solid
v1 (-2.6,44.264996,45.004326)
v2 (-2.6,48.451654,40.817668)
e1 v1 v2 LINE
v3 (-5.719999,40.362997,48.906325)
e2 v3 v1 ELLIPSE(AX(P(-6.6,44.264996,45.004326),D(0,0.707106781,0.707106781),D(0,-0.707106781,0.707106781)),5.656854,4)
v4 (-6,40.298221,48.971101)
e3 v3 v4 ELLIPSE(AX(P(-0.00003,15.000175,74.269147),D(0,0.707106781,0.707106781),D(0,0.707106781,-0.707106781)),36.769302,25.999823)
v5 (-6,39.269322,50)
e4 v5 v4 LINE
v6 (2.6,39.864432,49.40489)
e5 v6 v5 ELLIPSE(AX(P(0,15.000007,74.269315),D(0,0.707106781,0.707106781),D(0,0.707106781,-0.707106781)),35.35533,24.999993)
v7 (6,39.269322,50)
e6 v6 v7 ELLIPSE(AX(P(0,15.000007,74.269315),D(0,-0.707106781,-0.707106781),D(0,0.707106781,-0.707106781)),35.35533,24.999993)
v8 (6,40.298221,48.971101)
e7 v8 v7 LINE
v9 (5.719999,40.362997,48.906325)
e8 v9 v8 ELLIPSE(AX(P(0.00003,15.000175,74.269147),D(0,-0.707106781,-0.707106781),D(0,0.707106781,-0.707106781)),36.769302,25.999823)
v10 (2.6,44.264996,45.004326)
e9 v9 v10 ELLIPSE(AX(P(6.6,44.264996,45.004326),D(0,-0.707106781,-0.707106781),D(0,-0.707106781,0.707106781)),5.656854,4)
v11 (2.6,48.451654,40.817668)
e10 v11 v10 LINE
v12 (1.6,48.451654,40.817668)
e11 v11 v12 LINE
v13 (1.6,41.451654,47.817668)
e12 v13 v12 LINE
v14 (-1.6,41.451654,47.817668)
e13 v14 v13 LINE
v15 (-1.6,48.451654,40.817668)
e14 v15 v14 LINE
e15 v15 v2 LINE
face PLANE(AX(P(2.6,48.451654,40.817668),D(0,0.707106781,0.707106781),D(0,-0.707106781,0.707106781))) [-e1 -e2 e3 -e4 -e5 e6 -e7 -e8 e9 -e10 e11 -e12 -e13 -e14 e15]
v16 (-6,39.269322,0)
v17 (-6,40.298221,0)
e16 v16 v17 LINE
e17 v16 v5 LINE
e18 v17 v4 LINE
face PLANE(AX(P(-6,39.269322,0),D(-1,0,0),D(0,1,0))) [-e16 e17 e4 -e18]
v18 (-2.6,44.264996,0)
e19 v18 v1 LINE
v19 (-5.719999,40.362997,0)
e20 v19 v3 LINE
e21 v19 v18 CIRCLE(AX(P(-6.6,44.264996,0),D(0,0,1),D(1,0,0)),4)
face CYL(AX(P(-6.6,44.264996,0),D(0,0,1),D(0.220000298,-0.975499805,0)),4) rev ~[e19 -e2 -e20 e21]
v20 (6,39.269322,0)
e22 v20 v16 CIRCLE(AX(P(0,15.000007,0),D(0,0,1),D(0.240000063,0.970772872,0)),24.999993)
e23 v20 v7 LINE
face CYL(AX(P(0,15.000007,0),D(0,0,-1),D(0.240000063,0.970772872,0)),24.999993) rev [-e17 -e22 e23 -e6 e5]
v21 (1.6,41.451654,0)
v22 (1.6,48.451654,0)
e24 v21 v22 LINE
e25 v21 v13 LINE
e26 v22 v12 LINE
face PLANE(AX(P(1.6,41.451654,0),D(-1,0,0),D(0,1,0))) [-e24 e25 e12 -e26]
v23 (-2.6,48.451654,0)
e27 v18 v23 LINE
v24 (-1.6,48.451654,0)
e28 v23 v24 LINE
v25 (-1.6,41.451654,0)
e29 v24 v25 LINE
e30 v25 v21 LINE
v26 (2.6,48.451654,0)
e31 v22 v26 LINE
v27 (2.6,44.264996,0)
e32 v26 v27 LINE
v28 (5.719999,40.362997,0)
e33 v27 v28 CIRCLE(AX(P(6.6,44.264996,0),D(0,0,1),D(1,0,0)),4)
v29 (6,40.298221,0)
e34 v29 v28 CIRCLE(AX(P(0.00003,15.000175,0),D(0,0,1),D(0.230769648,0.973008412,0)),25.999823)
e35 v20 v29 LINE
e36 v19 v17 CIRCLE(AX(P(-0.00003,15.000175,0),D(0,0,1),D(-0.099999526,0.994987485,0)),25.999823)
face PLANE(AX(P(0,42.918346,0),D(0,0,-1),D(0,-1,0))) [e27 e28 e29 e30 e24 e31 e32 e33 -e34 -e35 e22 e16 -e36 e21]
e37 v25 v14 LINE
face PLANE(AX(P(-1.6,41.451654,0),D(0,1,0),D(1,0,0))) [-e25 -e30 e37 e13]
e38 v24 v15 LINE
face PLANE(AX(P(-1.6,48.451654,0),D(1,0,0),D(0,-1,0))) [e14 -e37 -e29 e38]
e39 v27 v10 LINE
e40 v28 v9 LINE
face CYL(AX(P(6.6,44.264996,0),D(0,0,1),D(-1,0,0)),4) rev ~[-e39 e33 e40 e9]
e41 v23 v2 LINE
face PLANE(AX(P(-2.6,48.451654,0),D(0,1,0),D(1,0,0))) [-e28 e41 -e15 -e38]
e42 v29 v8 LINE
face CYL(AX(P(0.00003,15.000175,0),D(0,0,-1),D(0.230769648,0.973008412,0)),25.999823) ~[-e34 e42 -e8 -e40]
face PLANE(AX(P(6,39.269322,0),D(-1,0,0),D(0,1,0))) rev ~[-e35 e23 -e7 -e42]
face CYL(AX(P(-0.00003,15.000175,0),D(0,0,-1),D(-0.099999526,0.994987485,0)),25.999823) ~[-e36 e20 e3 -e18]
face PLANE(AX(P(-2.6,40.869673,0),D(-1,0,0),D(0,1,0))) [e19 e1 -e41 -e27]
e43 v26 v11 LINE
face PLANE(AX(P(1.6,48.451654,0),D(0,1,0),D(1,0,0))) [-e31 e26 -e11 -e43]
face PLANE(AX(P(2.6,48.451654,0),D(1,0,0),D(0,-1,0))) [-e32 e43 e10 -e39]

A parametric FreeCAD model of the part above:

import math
import FreeCAD as App
import Part
import Sketcher
from FreeCAD import Vector
Q = App.Units.Quantity


def edges_at(feature, points):
    """Names of the edges that pass closest to the given points."""
    edges = feature.Shape.Edges
    near = lambda p: min(range(len(edges)), key=lambda i: edges[i].distToShape(Part.Vertex(*p))[0])
    return sorted({f"Edge{near(p) + 1}" for p in points})


def add_polygon(sketch, points):
    """Adds a closed chain of lines whose ends are joined by coincident constraints."""
    first, n = sketch.GeometryCount, len(points)
    for a, b in zip(points, points[1:] + points[:1]):
        sketch.addGeometry(Part.LineSegment(App.Vector(*a, 0), App.Vector(*b, 0)), False)
    for i in range(n):
        sketch.addConstraint(Sketcher.Constraint("Coincident", first + i, 2, first + (i + 1) % n, 1))

doc = App.newDocument("Part")
body = doc.addObject("PartDesign::Body", "Body")

sketch1 = body.newObject("Sketcher::SketchObject", "Sketch")
sketch1.AttachmentSupport = (doc.getObject("XY_Plane"), [""])
sketch1.MapMode = "FlatFace"
sketch1.addGeometry(Part.ArcOfCircle(Part.Circle(Vector(0.000007, 0, 0), Vector(0, 0, 1), 24.999993), math.radians(-13.886544), math.radians(13.886544)), False)
sketch1.addGeometry(Part.LineSegment(Vector(24.269322, -6, 0), Vector(25.298221, -6, 0)), False)
sketch1.addGeometry(Part.ArcOfCircle(Part.Circle(Vector(0.000175, -0.00003, 0), Vector(0, 0, 1), 25.999823), math.radians(-13.342388), math.radians(-5.739143)), False)
sketch1.addGeometry(Part.LineSegment(Vector(25.869673, -2.6, 0), Vector(33.451654, -2.6, 0)), False)
sketch1.addGeometry(Part.LineSegment(Vector(33.451654, -2.6, 0), Vector(33.451654, -1.6, 0)), False)
sketch1.addGeometry(Part.LineSegment(Vector(33.451654, -1.6, 0), Vector(26.451654, -1.6, 0)), False)
sketch1.addGeometry(Part.LineSegment(Vector(26.451654, -1.6, 0), Vector(26.451654, 1.6, 0)), False)
sketch1.addGeometry(Part.LineSegment(Vector(26.451654, 1.6, 0), Vector(33.451654, 1.6, 0)), False)
sketch1.addGeometry(Part.LineSegment(Vector(33.451654, 1.6, 0), Vector(33.451654, 2.6, 0)), False)
sketch1.addGeometry(Part.LineSegment(Vector(33.451654, 2.6, 0), Vector(25.869673, 2.6, 0)), False)
sketch1.addGeometry(Part.ArcOfCircle(Part.Circle(Vector(0.000175, 0.00003, 0), Vector(0, 0, 1), 25.999823), math.radians(5.739143), math.radians(13.342388)), False)
sketch1.addGeometry(Part.LineSegment(Vector(25.298221, 6, 0), Vector(24.269322, 6, 0)), False)
sketch1.addConstraint(Sketcher.Constraint("Coincident", 0, 1, 1, 1))
sketch1.addConstraint(Sketcher.Constraint("Coincident", 1, 2, 2, 1))
sketch1.addConstraint(Sketcher.Constraint("Coincident", 2, 2, 3, 1))
sketch1.addConstraint(Sketcher.Constraint("Coincident", 3, 2, 4, 1))
sketch1.addConstraint(Sketcher.Constraint("Coincident", 4, 2, 5, 1))
sketch1.addConstraint(Sketcher.Constraint("Coincident", 5, 2, 6, 1))
sketch1.addConstraint(Sketcher.Constraint("Coincident", 6, 2, 7, 1))
sketch1.addConstraint(Sketcher.Constraint("Coincident", 7, 2, 8, 1))
sketch1.addConstraint(Sketcher.Constraint("Coincident", 8, 2, 9, 1))
sketch1.addConstraint(Sketcher.Constraint("Coincident", 9, 2, 10, 1))
sketch1.addConstraint(Sketcher.Constraint("Coincident", 10, 2, 11, 1))
sketch1.addConstraint(Sketcher.Constraint("Coincident", 11, 2, 0, 2))
sketch1.addConstraint(Sketcher.Constraint("Horizontal", 1))
sketch1.addConstraint(Sketcher.Constraint("Horizontal", 3))
sketch1.addConstraint(Sketcher.Constraint("Vertical", 4))
sketch1.addConstraint(Sketcher.Constraint("Horizontal", 5))
sketch1.addConstraint(Sketcher.Constraint("Vertical", 6))
sketch1.addConstraint(Sketcher.Constraint("Horizontal", 7))
sketch1.addConstraint(Sketcher.Constraint("Vertical", 8))
sketch1.addConstraint(Sketcher.Constraint("Horizontal", 9))
sketch1.addConstraint(Sketcher.Constraint("Horizontal", 11))
sketch1.addConstraint(Sketcher.Constraint("Coincident", 0, 3, -1, 1))
sketch1.addConstraint(Sketcher.Constraint("Equal", 2, 10))
sketch1.addConstraint(Sketcher.Constraint("Symmetric", 2, 3, 10, 3, -1))
sketch1.addConstraint(Sketcher.Constraint("Symmetric", 4, 2, 7, 2, -1))
sketch1.addConstraint(Sketcher.Constraint("Vertical", 2, 2, 9, 2))
sketch1.addConstraint(Sketcher.Constraint("Vertical", 1, 2, 10, 2))
sketch1.addConstraint(Sketcher.Constraint("DistanceX", 5, 2, 5, 1, Q("7 mm")))
sketch1.addConstraint(Sketcher.Constraint("DistanceY", 4, 1, 4, 2, Q("1 mm")))
sketch1.addConstraint(Sketcher.Constraint("DistanceY", 6, 1, 6, 2, Q("3.2 mm")))
sketch1.addConstraint(Sketcher.Constraint("DistanceY", 0, 1, -1, 1, Q("6 mm")))
sketch1.addConstraint(Sketcher.Constraint("DistanceX", 1, 1, 1, 2, Q("1.028899 mm")))
sketch1.addConstraint(Sketcher.Constraint("Radius", 0, Q("24.999993 mm")))
sketch1.addConstraint(Sketcher.Constraint("Radius", 2, Q("25.999823 mm")))
sketch1.addConstraint(Sketcher.Constraint("DistanceX", 3, 1, 3, 2, Q("7.581981 mm")))
sketch1.addConstraint(Sketcher.Constraint("DistanceX", 2, 3, 2, 2, Q("25.869498 mm")))
pad1 = body.newObject("PartDesign::Pad", "Pad")
pad1.Profile = sketch1
pad1.Length = 50
doc.recompute()

fillet = body.newObject("PartDesign::Fillet", "Fillet")
fillet.Base = (pad1, edges_at(pad1, [(25.87, -2.6, 25), (25.87, 2.6, 25)]))
fillet.Radius = 4

sketch2 = body.newObject("Sketcher::SketchObject", "Sketch001")
sketch2.AttachmentSupport = (doc.getObject("XZ_Plane"), [""])
sketch2.MapMode = "FlatFace"
sketch2.AttachmentOffset = App.Placement(Vector(0, 0, 2.6), App.Rotation())
add_polygon(sketch2, [(33, 41), (33, 50), (24, 50)])
sketch2.addConstraint(Sketcher.Constraint("Vertical", 0))
sketch2.addConstraint(Sketcher.Constraint("Horizontal", 1))
sketch2.addConstraint(Sketcher.Constraint("Equal", 1, 0))
sketch2.addConstraint(Sketcher.Constraint("DistanceY", -1, 1, 0, 2, Q("50 mm")))
sketch2.addConstraint(Sketcher.Constraint("DistanceX", 1, 2, 1, 1, Q("9.182332 mm")))
sketch2.addConstraint(Sketcher.Constraint("DistanceX", -1, 1, 1, 2, Q("24.269322 mm")))
pocket1 = body.newObject("PartDesign::Pocket", "Pocket")
pocket1.Profile = sketch2
pocket1.Type = "ThroughAll"
pocket1.Midplane = True
body2 = doc.addObject("PartDesign::Body", "Body001")
doc.recompute()

body.Placement = App.Placement(Vector(0, 15, 0), App.Rotation(Vector(0, 0, 1), 90))
boolean = body2.newObject("PartDesign::Boolean", "Boolean")
boolean.Type = "Fuse"
boolean.addObjects([body])

doc.recompute()
